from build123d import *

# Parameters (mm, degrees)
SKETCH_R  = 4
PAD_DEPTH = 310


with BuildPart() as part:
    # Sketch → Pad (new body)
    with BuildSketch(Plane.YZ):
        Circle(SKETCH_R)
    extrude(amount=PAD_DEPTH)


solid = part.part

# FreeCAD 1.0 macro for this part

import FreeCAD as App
import Part
import Sketcher

V = App.Vector

doc = App.newDocument("Part")
body = doc.addObject("PartDesign::Body", "Body")

# Sketch on YZ plane
sketch1 = body.newObject("Sketcher::SketchObject", "Sketch")
sketch1.AttachmentSupport = (doc.getObject("YZ_Plane"), [""])
sketch1.MapMode = "FlatFace"
sketch1.addGeometry(Part.Circle(V(0, 0, 0), V(0, 0, 1), 4), False)
sketch1.addConstraint([
    Sketcher.Constraint("Coincident", 0, 3, -1, 1),
    Sketcher.Constraint("Diameter", 0, 8.0),
])
pad1 = body.newObject("PartDesign::Pad", "Pad")
pad1.Profile = sketch1
pad1.Length = 310

doc.recompute()
